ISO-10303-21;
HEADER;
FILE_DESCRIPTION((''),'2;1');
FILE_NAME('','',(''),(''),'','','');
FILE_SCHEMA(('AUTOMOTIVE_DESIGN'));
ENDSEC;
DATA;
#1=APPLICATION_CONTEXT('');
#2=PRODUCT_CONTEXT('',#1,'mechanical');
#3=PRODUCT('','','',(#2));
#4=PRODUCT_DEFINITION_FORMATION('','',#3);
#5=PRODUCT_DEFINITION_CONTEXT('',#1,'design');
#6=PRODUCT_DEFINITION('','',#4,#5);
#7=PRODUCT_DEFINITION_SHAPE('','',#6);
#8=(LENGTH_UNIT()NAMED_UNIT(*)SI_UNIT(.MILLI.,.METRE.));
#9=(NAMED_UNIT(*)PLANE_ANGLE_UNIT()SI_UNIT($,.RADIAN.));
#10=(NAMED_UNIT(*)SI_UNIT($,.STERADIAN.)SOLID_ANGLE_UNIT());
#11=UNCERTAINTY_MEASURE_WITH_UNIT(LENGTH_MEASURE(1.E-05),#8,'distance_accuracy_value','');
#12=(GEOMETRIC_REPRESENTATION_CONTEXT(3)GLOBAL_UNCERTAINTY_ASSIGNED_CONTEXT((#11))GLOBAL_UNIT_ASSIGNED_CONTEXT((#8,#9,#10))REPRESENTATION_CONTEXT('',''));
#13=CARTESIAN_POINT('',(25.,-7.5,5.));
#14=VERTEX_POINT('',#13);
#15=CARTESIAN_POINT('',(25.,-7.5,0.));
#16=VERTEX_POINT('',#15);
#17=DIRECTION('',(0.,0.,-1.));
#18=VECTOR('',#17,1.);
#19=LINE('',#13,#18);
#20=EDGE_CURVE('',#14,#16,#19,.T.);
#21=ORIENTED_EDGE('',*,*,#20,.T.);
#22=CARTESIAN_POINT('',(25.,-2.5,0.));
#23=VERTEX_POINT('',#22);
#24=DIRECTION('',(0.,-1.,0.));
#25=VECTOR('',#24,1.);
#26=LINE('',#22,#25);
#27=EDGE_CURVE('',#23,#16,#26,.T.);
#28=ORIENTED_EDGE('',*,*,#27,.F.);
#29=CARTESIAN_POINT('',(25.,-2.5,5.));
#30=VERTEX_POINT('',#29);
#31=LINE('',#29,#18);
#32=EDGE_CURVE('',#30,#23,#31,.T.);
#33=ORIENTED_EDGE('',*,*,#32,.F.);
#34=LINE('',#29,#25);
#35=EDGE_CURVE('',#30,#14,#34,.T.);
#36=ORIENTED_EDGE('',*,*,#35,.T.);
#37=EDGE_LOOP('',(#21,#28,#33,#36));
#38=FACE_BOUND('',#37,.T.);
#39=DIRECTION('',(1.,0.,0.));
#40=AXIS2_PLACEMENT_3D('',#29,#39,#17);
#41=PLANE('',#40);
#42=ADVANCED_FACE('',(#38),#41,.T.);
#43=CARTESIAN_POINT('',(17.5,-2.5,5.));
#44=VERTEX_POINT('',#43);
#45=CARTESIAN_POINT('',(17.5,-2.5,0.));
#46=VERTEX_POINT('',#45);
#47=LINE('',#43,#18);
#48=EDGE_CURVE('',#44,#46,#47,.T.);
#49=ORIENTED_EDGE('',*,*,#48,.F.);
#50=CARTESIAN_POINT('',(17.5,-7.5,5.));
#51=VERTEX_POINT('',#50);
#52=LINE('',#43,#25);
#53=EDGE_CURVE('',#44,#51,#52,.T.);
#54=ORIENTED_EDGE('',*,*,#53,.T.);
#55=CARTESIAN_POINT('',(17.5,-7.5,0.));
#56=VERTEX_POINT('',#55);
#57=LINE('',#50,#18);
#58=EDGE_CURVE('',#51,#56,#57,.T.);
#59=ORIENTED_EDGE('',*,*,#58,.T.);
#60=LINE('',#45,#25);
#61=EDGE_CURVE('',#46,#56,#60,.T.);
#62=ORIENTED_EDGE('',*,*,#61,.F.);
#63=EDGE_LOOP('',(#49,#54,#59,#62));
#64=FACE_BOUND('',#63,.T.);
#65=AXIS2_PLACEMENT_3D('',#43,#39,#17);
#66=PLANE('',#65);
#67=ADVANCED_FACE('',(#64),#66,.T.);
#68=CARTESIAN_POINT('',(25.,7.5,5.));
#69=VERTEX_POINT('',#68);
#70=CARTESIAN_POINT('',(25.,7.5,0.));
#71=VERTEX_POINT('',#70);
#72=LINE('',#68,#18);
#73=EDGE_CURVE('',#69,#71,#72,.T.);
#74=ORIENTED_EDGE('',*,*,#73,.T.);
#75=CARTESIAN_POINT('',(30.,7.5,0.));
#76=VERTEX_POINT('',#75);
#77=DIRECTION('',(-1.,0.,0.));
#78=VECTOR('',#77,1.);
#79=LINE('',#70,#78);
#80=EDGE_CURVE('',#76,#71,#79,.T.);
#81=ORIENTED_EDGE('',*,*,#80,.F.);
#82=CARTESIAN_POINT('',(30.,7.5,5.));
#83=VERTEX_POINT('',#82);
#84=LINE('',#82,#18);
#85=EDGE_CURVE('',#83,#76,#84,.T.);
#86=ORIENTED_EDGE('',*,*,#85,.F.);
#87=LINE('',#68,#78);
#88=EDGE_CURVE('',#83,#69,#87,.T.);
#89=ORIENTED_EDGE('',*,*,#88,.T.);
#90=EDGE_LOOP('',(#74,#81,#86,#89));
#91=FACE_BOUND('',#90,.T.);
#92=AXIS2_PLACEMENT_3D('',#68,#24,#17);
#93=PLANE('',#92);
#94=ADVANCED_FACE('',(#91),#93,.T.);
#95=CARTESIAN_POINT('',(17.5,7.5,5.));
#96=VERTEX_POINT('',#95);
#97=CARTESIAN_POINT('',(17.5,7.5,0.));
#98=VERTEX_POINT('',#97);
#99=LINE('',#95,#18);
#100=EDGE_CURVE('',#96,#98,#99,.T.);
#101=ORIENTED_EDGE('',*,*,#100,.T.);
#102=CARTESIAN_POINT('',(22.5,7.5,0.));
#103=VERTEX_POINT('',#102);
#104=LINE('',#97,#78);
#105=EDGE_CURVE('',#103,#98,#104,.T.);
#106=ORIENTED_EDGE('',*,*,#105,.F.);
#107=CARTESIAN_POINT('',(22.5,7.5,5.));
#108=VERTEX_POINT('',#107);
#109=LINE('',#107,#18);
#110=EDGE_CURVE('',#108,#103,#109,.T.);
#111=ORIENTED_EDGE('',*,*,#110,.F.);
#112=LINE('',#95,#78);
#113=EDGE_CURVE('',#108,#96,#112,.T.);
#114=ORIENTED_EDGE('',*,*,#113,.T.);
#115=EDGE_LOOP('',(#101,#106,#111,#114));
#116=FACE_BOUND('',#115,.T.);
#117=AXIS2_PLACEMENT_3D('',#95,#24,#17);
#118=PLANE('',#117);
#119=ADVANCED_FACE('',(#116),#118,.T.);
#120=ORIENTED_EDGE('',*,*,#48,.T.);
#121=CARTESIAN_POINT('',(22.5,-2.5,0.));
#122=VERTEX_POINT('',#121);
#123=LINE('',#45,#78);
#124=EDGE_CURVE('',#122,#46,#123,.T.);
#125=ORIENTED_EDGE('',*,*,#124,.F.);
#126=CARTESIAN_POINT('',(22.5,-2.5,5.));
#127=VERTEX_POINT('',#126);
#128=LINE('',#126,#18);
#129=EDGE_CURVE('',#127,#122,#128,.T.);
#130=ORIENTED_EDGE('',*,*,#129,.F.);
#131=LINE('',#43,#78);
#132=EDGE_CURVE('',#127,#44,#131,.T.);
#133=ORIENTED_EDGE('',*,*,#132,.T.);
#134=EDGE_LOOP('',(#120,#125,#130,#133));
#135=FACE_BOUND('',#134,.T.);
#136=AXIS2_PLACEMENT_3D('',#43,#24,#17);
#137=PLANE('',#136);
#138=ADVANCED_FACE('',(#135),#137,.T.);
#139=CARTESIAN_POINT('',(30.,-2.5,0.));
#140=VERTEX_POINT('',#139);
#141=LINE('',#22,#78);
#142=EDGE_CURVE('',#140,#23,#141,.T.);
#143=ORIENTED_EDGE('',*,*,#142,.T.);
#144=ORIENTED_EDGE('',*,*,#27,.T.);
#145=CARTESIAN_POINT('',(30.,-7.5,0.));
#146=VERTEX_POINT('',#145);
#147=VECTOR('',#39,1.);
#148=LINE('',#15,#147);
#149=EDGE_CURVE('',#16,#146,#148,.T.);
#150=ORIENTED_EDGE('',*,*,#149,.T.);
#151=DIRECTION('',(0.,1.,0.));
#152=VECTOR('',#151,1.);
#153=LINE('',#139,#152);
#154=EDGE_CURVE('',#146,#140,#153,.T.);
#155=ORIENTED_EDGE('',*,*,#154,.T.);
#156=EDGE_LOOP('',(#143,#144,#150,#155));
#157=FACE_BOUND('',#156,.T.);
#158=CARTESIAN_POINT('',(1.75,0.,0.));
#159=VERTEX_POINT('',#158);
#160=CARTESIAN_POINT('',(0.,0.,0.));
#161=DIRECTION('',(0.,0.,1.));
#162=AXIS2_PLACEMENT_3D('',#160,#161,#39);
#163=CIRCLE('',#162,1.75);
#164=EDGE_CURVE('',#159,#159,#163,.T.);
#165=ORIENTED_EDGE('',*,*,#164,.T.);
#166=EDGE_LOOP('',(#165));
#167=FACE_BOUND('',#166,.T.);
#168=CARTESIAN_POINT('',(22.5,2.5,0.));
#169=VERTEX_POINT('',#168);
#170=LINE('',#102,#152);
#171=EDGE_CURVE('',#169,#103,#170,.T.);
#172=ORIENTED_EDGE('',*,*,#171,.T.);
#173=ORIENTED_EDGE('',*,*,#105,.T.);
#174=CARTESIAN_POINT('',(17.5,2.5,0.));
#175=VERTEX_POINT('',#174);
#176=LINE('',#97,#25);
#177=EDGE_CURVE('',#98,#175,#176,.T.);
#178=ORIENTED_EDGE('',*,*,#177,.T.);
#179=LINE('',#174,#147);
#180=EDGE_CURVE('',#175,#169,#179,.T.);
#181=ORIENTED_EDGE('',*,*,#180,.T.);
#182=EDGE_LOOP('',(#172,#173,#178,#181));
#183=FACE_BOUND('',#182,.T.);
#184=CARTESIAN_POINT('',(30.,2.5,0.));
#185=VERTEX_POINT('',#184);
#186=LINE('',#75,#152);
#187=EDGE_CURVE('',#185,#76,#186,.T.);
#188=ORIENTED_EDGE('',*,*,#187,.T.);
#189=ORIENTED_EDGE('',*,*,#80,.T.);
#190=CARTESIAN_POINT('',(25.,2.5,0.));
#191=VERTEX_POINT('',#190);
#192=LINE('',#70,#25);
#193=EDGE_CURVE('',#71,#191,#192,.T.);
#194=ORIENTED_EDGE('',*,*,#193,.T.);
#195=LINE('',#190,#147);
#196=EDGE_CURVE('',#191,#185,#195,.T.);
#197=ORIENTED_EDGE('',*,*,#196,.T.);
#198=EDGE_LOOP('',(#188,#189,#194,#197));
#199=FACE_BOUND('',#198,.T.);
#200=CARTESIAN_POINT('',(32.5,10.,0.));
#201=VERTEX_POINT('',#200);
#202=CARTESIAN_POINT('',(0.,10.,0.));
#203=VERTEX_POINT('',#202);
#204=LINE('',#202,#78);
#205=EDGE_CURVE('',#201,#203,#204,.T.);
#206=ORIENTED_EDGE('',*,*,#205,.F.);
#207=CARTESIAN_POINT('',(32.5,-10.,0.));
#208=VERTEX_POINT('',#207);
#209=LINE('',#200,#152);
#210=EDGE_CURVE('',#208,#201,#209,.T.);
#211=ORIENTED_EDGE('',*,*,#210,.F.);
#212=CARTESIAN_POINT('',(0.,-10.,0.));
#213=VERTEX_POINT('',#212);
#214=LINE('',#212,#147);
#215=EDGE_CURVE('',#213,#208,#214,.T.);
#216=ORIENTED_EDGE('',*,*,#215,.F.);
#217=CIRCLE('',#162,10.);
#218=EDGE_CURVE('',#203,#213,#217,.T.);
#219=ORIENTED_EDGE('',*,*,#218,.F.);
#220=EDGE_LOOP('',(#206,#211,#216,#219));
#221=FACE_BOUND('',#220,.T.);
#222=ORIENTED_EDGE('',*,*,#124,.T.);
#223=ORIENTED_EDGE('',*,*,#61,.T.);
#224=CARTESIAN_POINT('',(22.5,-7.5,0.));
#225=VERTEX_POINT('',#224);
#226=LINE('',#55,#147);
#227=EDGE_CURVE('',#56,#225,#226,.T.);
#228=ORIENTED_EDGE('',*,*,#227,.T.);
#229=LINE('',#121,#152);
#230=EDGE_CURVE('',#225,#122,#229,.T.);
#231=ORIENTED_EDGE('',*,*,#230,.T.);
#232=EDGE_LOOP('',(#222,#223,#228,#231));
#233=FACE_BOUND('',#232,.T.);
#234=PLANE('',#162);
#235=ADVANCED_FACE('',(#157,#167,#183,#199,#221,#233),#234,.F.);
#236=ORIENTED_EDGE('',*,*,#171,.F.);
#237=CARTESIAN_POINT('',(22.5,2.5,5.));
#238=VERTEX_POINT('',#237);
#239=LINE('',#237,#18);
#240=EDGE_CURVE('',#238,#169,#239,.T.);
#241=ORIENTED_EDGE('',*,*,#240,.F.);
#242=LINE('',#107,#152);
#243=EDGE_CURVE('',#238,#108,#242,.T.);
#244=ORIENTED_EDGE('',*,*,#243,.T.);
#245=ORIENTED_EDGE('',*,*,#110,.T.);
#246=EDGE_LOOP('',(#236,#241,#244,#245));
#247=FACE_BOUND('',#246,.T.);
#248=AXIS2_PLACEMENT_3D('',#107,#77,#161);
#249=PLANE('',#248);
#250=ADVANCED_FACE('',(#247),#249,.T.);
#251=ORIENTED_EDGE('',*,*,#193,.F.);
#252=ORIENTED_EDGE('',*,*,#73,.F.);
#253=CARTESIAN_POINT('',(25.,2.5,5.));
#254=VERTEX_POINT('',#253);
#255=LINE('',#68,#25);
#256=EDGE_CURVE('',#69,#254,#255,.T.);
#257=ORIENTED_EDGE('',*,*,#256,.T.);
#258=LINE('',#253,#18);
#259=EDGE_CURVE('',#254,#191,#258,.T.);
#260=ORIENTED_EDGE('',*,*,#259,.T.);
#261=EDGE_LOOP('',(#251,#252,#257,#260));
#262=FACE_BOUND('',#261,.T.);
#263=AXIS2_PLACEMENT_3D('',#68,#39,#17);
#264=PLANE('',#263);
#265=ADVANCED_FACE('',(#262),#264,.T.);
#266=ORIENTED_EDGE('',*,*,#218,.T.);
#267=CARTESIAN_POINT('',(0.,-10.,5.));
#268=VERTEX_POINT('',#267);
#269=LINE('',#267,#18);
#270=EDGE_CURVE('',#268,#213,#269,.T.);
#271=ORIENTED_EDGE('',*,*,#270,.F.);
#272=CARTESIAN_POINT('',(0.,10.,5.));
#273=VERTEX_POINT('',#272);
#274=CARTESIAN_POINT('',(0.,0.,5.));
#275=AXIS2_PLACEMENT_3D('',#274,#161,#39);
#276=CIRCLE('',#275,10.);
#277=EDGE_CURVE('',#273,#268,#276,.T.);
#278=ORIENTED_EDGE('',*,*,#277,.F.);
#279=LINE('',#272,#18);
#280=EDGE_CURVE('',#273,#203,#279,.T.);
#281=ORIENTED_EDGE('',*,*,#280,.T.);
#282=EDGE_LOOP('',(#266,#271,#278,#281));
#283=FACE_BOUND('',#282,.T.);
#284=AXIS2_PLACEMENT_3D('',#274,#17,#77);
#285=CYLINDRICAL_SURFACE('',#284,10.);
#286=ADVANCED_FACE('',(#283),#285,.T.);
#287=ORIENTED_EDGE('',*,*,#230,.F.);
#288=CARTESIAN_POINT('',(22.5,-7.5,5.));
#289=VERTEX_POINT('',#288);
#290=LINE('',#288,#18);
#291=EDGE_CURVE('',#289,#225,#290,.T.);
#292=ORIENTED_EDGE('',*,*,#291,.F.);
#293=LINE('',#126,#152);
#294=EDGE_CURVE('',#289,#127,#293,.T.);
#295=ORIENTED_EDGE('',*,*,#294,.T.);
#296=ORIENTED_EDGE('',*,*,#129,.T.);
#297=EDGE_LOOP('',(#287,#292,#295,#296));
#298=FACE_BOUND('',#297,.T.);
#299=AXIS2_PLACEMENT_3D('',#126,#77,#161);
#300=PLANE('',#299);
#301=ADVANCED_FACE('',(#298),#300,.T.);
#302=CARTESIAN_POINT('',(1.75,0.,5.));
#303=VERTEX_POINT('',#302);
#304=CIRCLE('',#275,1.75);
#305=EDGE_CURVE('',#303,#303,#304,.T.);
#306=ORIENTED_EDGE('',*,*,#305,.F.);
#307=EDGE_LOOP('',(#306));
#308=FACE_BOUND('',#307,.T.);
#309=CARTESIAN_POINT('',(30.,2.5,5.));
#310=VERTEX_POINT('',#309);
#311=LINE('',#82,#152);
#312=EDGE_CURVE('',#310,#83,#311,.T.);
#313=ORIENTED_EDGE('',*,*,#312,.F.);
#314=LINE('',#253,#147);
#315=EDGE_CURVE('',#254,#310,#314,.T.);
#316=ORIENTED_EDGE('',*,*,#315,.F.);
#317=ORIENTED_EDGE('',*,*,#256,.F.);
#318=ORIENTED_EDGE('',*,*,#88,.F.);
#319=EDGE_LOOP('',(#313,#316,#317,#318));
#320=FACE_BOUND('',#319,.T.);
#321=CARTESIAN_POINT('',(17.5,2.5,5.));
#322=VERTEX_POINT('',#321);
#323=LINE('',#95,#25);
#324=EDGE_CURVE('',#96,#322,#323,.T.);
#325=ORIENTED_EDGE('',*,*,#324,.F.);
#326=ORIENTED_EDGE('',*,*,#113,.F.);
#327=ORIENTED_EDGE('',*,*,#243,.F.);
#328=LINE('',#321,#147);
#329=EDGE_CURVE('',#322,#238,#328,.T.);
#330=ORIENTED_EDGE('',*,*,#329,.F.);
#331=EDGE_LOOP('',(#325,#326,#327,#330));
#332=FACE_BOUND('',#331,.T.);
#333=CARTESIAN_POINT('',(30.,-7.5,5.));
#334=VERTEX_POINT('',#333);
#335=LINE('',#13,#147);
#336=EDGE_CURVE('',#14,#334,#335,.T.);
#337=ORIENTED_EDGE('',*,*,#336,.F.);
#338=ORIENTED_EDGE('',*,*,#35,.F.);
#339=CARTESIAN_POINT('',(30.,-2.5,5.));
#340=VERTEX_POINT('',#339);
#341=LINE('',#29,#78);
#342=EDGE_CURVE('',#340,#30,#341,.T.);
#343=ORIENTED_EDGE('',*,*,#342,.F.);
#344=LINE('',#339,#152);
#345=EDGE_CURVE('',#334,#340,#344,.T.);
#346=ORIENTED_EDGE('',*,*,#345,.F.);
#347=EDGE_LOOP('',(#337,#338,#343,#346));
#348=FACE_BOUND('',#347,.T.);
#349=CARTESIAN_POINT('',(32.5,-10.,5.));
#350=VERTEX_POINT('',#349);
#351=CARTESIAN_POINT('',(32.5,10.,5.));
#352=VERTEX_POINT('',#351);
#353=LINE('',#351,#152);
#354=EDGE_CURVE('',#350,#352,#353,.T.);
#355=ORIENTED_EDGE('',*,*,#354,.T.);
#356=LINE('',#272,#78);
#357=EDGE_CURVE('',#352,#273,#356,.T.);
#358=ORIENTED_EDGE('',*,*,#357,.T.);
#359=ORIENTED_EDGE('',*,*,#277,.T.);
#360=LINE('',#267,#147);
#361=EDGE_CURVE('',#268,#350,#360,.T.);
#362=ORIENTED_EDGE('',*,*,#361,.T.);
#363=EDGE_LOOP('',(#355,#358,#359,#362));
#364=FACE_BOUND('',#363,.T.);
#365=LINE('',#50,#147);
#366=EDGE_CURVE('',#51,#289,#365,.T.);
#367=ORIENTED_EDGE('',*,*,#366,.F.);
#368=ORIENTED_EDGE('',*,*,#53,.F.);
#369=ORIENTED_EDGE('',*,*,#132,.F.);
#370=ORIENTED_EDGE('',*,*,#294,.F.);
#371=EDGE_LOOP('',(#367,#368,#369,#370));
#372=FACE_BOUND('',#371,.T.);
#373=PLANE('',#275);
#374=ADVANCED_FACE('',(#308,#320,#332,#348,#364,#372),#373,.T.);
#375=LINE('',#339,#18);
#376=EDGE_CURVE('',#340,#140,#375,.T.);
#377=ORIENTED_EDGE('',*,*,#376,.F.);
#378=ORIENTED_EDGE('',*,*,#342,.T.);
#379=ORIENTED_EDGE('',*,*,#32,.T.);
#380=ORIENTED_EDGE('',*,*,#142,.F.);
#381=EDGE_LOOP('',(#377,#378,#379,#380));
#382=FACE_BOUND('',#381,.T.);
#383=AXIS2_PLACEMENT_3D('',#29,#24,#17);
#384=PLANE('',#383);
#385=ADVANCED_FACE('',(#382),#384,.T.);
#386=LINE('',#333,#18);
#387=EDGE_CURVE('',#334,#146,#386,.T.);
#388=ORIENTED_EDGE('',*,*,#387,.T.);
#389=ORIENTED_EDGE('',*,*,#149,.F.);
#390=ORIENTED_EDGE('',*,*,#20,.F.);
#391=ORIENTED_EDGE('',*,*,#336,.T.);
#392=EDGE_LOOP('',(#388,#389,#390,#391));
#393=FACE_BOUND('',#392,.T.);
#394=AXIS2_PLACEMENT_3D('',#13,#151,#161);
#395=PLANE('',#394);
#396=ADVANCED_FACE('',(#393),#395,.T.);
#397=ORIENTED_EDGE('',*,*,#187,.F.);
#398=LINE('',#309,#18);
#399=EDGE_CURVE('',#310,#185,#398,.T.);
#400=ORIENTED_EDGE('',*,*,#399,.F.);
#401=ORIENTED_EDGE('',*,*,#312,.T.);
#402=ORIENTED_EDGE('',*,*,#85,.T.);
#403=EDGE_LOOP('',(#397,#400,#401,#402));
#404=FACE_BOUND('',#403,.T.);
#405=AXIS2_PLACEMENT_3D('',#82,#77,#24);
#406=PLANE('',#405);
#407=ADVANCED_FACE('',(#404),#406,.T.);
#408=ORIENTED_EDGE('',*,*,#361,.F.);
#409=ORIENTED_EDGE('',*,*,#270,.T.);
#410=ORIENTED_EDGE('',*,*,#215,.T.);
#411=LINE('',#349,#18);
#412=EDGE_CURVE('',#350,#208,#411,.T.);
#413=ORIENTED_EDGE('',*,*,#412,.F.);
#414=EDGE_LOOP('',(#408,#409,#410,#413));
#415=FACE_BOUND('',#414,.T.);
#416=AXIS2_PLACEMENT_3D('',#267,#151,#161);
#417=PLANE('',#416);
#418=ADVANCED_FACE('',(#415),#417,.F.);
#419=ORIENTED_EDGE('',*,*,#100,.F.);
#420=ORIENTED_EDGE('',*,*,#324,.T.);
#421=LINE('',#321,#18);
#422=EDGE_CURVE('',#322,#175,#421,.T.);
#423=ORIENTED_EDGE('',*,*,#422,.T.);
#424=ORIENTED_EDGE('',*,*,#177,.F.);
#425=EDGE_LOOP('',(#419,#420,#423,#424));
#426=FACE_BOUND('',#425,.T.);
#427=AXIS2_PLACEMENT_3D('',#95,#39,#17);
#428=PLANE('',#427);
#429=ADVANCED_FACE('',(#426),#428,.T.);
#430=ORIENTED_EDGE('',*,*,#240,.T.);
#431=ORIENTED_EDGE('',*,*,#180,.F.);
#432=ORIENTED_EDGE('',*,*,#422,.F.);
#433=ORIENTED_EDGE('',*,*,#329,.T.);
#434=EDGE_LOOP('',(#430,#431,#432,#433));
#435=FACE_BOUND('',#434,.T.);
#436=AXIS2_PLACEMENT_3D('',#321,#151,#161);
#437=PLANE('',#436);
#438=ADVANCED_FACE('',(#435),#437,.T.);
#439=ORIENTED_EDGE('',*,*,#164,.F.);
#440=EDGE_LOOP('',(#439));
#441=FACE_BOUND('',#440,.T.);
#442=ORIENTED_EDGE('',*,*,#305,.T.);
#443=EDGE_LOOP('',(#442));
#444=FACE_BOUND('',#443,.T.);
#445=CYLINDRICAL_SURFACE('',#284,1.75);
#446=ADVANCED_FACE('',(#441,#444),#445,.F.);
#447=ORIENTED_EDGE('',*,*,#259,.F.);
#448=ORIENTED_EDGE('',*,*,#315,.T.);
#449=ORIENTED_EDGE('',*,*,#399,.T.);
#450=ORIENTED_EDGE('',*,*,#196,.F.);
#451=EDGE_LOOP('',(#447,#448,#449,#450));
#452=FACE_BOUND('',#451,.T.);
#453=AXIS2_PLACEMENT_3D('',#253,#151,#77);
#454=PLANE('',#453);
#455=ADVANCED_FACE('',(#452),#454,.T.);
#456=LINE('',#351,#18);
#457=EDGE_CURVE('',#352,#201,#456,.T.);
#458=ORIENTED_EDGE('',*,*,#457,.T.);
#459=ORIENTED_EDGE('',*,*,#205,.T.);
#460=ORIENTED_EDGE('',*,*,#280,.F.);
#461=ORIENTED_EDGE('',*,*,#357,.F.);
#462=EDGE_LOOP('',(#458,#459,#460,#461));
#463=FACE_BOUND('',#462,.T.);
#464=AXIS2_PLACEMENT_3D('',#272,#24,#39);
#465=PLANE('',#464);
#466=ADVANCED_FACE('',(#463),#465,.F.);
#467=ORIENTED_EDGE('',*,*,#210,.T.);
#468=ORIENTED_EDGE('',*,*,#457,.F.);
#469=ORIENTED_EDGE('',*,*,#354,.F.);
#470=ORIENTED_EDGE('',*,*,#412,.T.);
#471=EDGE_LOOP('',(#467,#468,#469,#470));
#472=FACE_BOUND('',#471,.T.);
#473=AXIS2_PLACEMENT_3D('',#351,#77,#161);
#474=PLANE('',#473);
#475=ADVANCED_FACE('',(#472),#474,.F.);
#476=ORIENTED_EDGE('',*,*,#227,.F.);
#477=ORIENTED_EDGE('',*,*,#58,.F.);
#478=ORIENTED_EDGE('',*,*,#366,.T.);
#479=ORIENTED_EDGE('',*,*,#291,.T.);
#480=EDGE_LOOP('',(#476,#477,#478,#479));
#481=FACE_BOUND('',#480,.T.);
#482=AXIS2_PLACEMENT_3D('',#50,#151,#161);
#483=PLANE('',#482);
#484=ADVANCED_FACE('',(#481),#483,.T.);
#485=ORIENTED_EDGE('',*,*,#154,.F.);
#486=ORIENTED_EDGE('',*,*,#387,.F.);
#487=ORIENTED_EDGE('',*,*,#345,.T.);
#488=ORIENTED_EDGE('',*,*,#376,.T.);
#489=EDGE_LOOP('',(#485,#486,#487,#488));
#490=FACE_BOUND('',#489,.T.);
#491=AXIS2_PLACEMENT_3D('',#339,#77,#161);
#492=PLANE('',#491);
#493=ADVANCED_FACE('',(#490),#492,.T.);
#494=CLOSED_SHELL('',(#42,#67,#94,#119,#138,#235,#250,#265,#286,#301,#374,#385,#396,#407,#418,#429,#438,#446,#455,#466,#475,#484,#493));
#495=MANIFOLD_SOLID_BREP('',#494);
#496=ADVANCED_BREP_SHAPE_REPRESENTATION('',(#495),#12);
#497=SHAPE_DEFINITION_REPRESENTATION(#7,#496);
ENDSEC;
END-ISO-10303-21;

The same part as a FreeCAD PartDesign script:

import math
import FreeCAD as App
import Part
import Sketcher
from FreeCAD import Vector
Q = App.Units.Quantity


def add_polygon(sketch, points):
    """Adds a closed chain of lines whose ends are joined by coincident constraints."""
    first, n = sketch.GeometryCount, len(points)
    for a, b in zip(points, points[1:] + points[:1]):
        sketch.addGeometry(Part.LineSegment(App.Vector(*a, 0), App.Vector(*b, 0)), False)
    for i in range(n):
        sketch.addConstraint(Sketcher.Constraint("Coincident", first + i, 2, first + (i + 1) % n, 1))

doc = App.newDocument("Part")
body = doc.addObject("PartDesign::Body", "Body")

# Sketch on XY plane
sketch1 = body.newObject("Sketcher::SketchObject", "Sketch")
sketch1.AttachmentSupport = (doc.getObject("XY_Plane"), [""])
sketch1.MapMode = "FlatFace"
sketch1.addGeometry(Part.LineSegment(Vector(32.5, 10, 0), Vector(0, 10, 0)), False)  # 0
sketch1.addGeometry(Part.ArcOfCircle(Part.Circle(Vector(0, 0, 0), Vector(0, 0, 1), 10), math.radians(90), math.radians(270)), False)  # 1
sketch1.addGeometry(Part.LineSegment(Vector(0, -10, 0), Vector(32.5, -10, 0)), False)  # 2
sketch1.addGeometry(Part.LineSegment(Vector(32.5, -10, 0), Vector(32.5, 10, 0)), False)  # 3
add_polygon(sketch1, [(25, -7.5), (25, -2.5), (30, -2.5), (30, -7.5)])  # lines 4-7
add_polygon(sketch1, [(17.5, -7.5), (17.5, -2.5), (22.5, -2.5), (22.5, -7.5)])  # lines 8-11
add_polygon(sketch1, [(25, 2.5), (25, 7.5), (30, 7.5), (30, 2.5)])  # lines 12-15
add_polygon(sketch1, [(17.5, 2.5), (17.5, 7.5), (22.5, 7.5), (22.5, 2.5)])  # lines 16-19
sketch1.addGeometry(Part.Circle(Vector(0, 0, 0), Vector(0, 0, 1), 1.75), False)  # 20
sketch1.addConstraint(Sketcher.Constraint("Tangent", 0, 2, 1, 1))
sketch1.addConstraint(Sketcher.Constraint("Tangent", 1, 2, 2, 1))
sketch1.addConstraint(Sketcher.Constraint("Coincident", 2, 2, 3, 1))
sketch1.addConstraint(Sketcher.Constraint("Coincident", 3, 2, 0, 1))
sketch1.addConstraint(Sketcher.Constraint("Horizontal", 0))
sketch1.addConstraint(Sketcher.Constraint("Horizontal", 2))
sketch1.addConstraint(Sketcher.Constraint("Vertical", 3))
sketch1.addConstraint(Sketcher.Constraint("Vertical", 4))
sketch1.addConstraint(Sketcher.Constraint("Horizontal", 5))
sketch1.addConstraint(Sketcher.Constraint("Vertical", 6))
sketch1.addConstraint(Sketcher.Constraint("Horizontal", 7))
sketch1.addConstraint(Sketcher.Constraint("Vertical", 8))
sketch1.addConstraint(Sketcher.Constraint("Horizontal", 9))
sketch1.addConstraint(Sketcher.Constraint("Vertical", 10))
sketch1.addConstraint(Sketcher.Constraint("Horizontal", 11))
sketch1.addConstraint(Sketcher.Constraint("Vertical", 12))
sketch1.addConstraint(Sketcher.Constraint("Horizontal", 13))
sketch1.addConstraint(Sketcher.Constraint("Vertical", 14))
sketch1.addConstraint(Sketcher.Constraint("Horizontal", 15))
sketch1.addConstraint(Sketcher.Constraint("Vertical", 16))
sketch1.addConstraint(Sketcher.Constraint("Horizontal", 17))
sketch1.addConstraint(Sketcher.Constraint("Vertical", 18))
sketch1.addConstraint(Sketcher.Constraint("Horizontal", 19))
sketch1.addConstraint(Sketcher.Constraint("Coincident", 1, 3, -1, 1))
sketch1.addConstraint(Sketcher.Constraint("Coincident", 20, 3, -1, 1))
sketch1.addConstraint(Sketcher.Constraint("Symmetric", 7, 2, 12, 2, -1))
sketch1.addConstraint(Sketcher.Constraint("Symmetric", 5, 2, 14, 2, -1))
sketch1.addConstraint(Sketcher.Constraint("Symmetric", 11, 2, 16, 2, -1))
sketch1.addConstraint(Sketcher.Constraint("Symmetric", 9, 2, 18, 2, -1))
sketch1.addConstraint(Sketcher.Constraint("Horizontal", 5, 2, 8, 2))
sketch1.addConstraint(Sketcher.Constraint("Horizontal", 7, 2, 10, 2))
sketch1.addConstraint(Sketcher.Constraint("Equal", 7, 9))
sketch1.addConstraint(Sketcher.Constraint("Equal", 19, 4))
sketch1.addConstraint(Sketcher.Constraint("Radius", 1, Q("10 mm")))
sketch1.addConstraint(Sketcher.Constraint("Diameter", 20, Q("3.5 mm")))
sketch1.addConstraint(Sketcher.Constraint("DistanceX", 5, 1, 5, 2, Q("5 mm")))
sketch1.addConstraint(Sketcher.Constraint("DistanceX", 0, 2, 0, 1, Q("32.5 mm")))
sketch1.addConstraint(Sketcher.Constraint("DistanceX", -1, 1, 4, 2, Q("25 mm")))
sketch1.addConstraint(Sketcher.Constraint("DistanceX", 8, 2, 2, 2, Q("15 mm")))
sketch1.addConstraint(Sketcher.Constraint("DistanceY", 4, 2, 12, 2, Q("10 mm")))
pad1 = body.newObject("PartDesign::Pad", "Pad")
pad1.Profile = sketch1
pad1.Length = 5

doc.recompute()
